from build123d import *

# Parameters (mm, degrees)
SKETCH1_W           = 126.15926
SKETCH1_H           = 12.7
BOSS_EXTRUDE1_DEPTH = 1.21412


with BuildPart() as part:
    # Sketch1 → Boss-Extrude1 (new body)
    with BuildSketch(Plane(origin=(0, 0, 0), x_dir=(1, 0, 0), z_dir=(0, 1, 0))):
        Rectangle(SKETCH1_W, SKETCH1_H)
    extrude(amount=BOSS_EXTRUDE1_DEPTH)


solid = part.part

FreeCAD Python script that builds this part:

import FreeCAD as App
import Part
import Sketcher

V = App.Vector
Q = App.Units.Quantity

doc = App.newDocument("Part")
body = doc.addObject("PartDesign::Body", "Body")

# Sketch on XZ plane
sketch1 = body.newObject("Sketcher::SketchObject", "Sketch")
sketch1.AttachmentSupport = (doc.getObject("XZ_Plane"), [""])
sketch1.MapMode = "FlatFace"
sketch1.addGeometry(Part.LineSegment(V(-63.07963, -6.35, 0), V(-63.07963, 6.35, 0)), False)
sketch1.addGeometry(Part.LineSegment(V(-63.07963, 6.35, 0), V(63.07963, 6.35, 0)), False)
sketch1.addGeometry(Part.LineSegment(V(63.07963, 6.35, 0), V(63.07963, -6.35, 0)), False)
sketch1.addGeometry(Part.LineSegment(V(63.07963, -6.35, 0), V(-63.07963, -6.35, 0)), False)
sketch1.addConstraint(Sketcher.Constraint("Coincident", 0, 2, 1, 1))
sketch1.addConstraint(Sketcher.Constraint("Coincident", 1, 2, 2, 1))
sketch1.addConstraint(Sketcher.Constraint("Coincident", 2, 2, 3, 1))
sketch1.addConstraint(Sketcher.Constraint("Coincident", 3, 2, 0, 1))
sketch1.addConstraint(Sketcher.Constraint("Vertical", 0))
sketch1.addConstraint(Sketcher.Constraint("Horizontal", 1))
sketch1.addConstraint(Sketcher.Constraint("Vertical", 2))
sketch1.addConstraint(Sketcher.Constraint("Horizontal", 3))
sketch1.addConstraint(Sketcher.Constraint("Symmetric", 0, 2, 2, 2, -1, 1))
sketch1.addConstraint(Sketcher.Constraint("DistanceY", 0, 1, 0, 2, Q("0.5 in")))
sketch1.addConstraint(Sketcher.Constraint("DistanceX", 1, 1, 1, 2, Q("4.9669 in")))
pad1 = body.newObject("PartDesign::Pad", "Pad")
pad1.Profile = sketch1
pad1.Length = Q("0.0478 in")
pad1.Reversed = True

doc.recompute()
